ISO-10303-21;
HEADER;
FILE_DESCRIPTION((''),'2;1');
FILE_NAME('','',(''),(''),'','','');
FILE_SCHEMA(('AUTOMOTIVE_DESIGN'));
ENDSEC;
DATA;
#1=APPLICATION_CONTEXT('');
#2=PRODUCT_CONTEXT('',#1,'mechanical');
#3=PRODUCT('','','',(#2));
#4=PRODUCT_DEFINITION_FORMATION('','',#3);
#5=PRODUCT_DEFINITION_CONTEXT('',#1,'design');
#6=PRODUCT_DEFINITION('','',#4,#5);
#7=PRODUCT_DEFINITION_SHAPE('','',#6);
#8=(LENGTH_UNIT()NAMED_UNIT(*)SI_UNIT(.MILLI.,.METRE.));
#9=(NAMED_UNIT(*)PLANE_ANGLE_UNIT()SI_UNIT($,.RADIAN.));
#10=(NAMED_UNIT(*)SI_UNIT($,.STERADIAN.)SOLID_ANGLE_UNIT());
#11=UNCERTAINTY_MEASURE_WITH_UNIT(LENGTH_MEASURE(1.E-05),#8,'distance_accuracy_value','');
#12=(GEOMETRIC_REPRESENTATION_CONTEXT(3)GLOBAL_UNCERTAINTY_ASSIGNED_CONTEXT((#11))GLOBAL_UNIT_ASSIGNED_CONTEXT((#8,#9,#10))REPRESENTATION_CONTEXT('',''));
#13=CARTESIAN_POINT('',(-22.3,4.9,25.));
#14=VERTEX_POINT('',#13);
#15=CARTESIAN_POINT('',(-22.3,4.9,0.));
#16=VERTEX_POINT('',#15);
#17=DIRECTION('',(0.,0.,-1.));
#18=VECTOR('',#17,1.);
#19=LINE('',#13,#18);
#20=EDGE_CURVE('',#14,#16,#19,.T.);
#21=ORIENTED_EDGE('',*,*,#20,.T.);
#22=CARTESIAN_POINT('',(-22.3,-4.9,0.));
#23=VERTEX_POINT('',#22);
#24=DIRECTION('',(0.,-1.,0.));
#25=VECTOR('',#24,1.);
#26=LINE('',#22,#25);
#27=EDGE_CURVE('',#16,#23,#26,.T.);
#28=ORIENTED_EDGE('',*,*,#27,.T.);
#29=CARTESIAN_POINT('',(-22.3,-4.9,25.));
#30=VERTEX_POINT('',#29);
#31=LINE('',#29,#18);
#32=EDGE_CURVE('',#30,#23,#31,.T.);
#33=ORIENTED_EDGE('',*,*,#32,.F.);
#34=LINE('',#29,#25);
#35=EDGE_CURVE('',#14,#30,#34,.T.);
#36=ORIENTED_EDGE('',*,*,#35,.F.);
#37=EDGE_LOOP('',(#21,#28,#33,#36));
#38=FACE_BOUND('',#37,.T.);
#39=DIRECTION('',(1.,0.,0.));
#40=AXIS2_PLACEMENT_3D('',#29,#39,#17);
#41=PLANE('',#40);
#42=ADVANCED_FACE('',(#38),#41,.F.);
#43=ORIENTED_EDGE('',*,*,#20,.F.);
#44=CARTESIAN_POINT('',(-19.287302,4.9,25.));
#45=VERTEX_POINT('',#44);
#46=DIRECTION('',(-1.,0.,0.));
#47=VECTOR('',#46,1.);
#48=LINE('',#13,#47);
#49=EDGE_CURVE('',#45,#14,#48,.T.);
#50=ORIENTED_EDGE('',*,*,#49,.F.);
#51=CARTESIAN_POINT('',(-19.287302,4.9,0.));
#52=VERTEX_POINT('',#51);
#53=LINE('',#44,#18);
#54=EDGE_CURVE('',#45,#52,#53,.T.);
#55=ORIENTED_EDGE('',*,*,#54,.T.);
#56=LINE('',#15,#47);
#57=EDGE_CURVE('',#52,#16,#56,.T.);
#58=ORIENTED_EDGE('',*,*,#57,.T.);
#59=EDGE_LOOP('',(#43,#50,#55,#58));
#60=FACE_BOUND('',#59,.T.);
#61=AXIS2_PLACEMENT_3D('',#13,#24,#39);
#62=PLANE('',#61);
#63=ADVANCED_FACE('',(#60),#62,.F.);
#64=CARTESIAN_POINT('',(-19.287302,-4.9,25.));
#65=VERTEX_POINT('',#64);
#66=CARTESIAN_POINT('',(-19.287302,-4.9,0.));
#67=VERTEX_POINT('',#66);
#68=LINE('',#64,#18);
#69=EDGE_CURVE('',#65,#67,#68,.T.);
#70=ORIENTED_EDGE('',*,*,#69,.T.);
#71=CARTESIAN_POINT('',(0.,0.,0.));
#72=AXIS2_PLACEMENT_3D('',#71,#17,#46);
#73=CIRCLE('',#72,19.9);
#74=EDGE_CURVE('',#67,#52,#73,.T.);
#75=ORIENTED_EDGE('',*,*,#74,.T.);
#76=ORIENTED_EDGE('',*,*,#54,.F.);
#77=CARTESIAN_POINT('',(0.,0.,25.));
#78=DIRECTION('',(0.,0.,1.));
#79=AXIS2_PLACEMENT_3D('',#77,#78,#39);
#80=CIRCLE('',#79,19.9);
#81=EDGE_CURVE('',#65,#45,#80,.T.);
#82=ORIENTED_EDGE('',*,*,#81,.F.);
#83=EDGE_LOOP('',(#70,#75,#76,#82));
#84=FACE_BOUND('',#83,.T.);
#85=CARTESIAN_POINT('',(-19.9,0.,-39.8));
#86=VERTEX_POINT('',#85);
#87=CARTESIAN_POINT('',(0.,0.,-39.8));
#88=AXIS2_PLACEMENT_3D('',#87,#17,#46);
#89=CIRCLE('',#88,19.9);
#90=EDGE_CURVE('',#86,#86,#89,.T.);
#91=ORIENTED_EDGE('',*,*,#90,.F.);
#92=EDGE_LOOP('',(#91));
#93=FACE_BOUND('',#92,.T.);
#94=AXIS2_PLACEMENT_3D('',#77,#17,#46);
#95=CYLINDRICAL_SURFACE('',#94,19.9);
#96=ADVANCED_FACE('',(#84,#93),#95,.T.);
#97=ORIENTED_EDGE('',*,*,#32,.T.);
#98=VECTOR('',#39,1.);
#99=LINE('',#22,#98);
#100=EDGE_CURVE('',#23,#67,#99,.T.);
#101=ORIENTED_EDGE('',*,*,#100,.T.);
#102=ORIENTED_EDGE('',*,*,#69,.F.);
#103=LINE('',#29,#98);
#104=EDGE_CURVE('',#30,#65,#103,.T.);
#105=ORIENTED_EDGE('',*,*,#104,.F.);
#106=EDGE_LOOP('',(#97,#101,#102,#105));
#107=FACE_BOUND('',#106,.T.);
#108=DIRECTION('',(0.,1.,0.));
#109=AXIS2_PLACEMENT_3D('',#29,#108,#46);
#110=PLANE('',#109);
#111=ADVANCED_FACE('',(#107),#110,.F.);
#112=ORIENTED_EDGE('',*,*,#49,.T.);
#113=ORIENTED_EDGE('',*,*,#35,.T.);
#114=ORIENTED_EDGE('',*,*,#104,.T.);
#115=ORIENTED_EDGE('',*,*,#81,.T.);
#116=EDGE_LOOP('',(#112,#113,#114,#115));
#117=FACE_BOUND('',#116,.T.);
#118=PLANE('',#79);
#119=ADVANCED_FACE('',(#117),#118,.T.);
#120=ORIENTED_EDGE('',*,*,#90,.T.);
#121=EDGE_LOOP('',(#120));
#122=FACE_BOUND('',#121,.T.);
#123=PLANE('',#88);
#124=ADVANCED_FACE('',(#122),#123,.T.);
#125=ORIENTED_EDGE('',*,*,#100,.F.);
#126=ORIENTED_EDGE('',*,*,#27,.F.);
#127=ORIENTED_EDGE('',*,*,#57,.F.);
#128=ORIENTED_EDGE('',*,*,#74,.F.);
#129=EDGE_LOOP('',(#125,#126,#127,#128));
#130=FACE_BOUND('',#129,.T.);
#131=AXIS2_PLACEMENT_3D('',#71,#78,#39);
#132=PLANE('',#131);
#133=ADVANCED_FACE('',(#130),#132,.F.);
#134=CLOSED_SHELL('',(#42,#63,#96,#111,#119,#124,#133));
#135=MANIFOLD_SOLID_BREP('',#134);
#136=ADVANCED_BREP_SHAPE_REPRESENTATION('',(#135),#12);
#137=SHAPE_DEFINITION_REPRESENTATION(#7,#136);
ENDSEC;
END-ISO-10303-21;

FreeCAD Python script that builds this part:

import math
import FreeCAD as App
import Part
import Sketcher
from FreeCAD import Vector

doc = App.newDocument("Part")
body = doc.addObject("PartDesign::Body", "Body")

# Sketch on XY plane
sketch1 = body.newObject("Sketcher::SketchObject", "Sketch")
sketch1.AttachmentSupport = (doc.getObject("XY_Plane"), [""])
sketch1.MapMode = "FlatFace"
sketch1.addGeometry([
    Part.LineSegment(Vector(-22.3, 4.9, 0), Vector(-22.3, -4.9, 0)),
    Part.LineSegment(Vector(-22.3, -4.9, 0), Vector(-19.3, -4.9, 0)),
    Part.ArcOfCircle(Part.Circle(Vector(0, 0, 0), Vector(0, 0, 1), 19.9), math.radians(-166), math.radians(166)),
    Part.LineSegment(Vector(-19.3, 4.9, 0), Vector(-22.3, 4.9, 0)),
], False)
sketch1.addConstraint([
    Sketcher.Constraint("Coincident", 0, 2, 1, 1),
    Sketcher.Constraint("Coincident", 1, 2, 2, 1),
    Sketcher.Constraint("Coincident", 2, 2, 3, 1),
    Sketcher.Constraint("Coincident", 3, 2, 0, 1),
    Sketcher.Constraint("Vertical", 0),
    Sketcher.Constraint("Horizontal", 1),
    Sketcher.Constraint("Horizontal", 3),
    Sketcher.Constraint("Coincident", 2, 3, -1, 1),
    Sketcher.Constraint("Vertical", 1, 2, 2, 2),
    Sketcher.Constraint("Radius", 2, 19.9),
    Sketcher.Constraint("DistanceY", 0, 2, 0, 1, 9.8),
    Sketcher.Constraint("DistanceX", 0, 2, -1, 1, 22.3),
])
pad1 = body.newObject("PartDesign::Pad", "Pad")
pad1.Profile = sketch1
pad1.Length = 25

# Sketch on XY plane
sketch2 = body.newObject("Sketcher::SketchObject", "Sketch001")
sketch2.AttachmentSupport = (doc.getObject("XY_Plane"), [""])
sketch2.MapMode = "FlatFace"
sketch2.AttachmentOffset = App.Placement(Vector(0, 0, -39.8), App.Rotation())
sketch2.addGeometry(Part.Circle(Vector(0, 0, 0), Vector(0, 0, 1), 20), False)
sketch2.addConstraint([
    Sketcher.Constraint("Coincident", 0, 3, -1, 1),
    Sketcher.Constraint("Diameter", 0, 39.8),
])
pad2 = body.newObject("PartDesign::Pad", "Pad001")
pad2.Profile = sketch2
pad2.Length = 39.8

doc.recompute()
